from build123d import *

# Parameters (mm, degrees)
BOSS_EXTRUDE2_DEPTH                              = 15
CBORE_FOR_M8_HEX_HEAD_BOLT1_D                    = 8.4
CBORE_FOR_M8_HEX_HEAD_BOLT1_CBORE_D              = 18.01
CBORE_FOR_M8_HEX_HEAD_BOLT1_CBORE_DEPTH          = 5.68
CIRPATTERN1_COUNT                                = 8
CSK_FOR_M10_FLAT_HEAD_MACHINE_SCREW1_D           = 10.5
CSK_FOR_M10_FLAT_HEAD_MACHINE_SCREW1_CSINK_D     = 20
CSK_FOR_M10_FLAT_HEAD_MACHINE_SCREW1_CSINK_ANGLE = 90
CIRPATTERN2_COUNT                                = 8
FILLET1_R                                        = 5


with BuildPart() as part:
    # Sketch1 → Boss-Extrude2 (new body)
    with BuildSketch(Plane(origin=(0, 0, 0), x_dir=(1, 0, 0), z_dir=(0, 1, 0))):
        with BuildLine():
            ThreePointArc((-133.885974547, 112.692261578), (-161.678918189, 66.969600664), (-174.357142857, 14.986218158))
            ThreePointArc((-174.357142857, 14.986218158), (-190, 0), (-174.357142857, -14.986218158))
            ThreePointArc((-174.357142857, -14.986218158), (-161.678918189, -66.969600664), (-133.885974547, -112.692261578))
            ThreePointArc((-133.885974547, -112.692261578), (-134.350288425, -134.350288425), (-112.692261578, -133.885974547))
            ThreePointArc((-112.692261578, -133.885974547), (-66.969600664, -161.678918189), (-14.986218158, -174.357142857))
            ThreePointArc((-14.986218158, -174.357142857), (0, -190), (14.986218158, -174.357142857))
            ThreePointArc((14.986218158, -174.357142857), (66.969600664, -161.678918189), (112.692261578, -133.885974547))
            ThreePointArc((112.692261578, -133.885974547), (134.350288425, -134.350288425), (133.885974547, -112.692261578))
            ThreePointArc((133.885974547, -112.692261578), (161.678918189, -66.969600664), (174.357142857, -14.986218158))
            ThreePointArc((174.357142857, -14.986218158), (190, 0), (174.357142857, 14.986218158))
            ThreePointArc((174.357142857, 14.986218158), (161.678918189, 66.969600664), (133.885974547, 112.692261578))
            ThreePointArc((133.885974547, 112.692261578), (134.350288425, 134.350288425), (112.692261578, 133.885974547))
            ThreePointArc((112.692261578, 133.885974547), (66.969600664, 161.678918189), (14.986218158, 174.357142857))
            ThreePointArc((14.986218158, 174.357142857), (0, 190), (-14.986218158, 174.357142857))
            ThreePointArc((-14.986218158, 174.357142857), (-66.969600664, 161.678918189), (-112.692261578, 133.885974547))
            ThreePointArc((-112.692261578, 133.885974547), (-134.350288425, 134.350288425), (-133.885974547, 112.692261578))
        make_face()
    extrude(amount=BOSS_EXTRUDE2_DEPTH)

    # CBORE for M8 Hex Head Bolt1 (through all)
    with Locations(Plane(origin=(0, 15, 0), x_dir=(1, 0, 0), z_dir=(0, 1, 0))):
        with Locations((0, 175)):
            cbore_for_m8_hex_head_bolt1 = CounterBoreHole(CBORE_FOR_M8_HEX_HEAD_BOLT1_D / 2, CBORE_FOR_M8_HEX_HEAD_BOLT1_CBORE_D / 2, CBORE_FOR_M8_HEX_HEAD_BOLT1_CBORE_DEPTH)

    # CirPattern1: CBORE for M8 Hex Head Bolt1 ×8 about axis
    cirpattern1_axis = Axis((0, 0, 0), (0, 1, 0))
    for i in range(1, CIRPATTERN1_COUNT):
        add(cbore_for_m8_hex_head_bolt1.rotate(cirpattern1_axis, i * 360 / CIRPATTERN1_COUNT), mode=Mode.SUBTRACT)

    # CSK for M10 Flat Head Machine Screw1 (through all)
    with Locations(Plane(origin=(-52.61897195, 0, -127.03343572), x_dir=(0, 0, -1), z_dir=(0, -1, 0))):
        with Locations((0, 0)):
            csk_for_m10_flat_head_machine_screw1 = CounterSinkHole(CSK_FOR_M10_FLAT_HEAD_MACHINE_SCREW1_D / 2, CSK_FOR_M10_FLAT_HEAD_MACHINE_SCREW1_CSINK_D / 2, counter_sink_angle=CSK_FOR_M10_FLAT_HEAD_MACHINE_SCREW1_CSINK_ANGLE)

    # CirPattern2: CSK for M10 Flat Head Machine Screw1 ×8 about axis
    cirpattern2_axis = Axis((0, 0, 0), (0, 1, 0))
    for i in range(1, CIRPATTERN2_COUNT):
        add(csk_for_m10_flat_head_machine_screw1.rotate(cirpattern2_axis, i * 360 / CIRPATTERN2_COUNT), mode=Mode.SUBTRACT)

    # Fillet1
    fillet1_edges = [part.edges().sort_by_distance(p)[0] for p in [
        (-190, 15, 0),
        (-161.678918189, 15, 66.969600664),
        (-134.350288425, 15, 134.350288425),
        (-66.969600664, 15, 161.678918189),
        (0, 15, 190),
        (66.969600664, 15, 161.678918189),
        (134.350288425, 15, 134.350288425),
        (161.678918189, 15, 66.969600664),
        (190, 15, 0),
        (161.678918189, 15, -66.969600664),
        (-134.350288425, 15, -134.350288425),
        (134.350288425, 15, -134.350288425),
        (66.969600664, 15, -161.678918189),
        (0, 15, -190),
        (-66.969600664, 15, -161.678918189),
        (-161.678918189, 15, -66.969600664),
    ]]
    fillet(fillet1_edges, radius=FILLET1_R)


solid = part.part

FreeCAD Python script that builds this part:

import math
import FreeCAD as App
import Part
import Sketcher
Q = App.Units.Quantity


def edges_at(feature, points):
    """Names of the edges that pass closest to the given points."""
    edges = feature.Shape.Edges
    near = lambda p: min(range(len(edges)), key=lambda i: edges[i].distToShape(Part.Vertex(*p))[0])
    return sorted({f"Edge{near(p) + 1}" for p in points})

doc = App.newDocument("Part")
params = doc.addObject("Spreadsheet::Sheet", "Params")
for row, (alias, value) in enumerate([
    ("sketch1_radius", "175 mm"),
    ("sketch1_radius2", "15 mm"),
    ("pad1_length", "15 mm"),
    ("sketch2_diameter", "8.4 mm"),
    ("hole_diameter", "8.4 mm"),
    ("hole_cbore_diameter", "18.01 mm"),
    ("hole_cbore_depth", "5.68 mm"),
    ("sketch3_diameter", "10.5 mm"),
    ("hole2_diameter", "10.5 mm"),
    ("hole2_csink_diameter", "20 mm"),
    ("fillet_radius", "5 mm"),
], start=1):
    params.set(f"A{row}", alias)
    params.set(f"B{row}", "=" + value)
    params.setAlias(f"B{row}", alias)

body = doc.addObject("PartDesign::Body", "Body")

sketch1 = body.newObject("Sketcher::SketchObject", "Sketch")
sketch1.AttachmentSupport = (doc.getObject("XZ_Plane"), [""])
sketch1.MapMode = "FlatFace"
sketch1.addGeometry([
    Part.ArcOfCircle(Part.Circle(App.Vector(0, 0, 0), App.Vector(0, 0, 1), 175), math.radians(-175.087429), math.radians(-139.912571)),
    Part.ArcOfCircle(Part.Circle(App.Vector(-175, 0, 0), App.Vector(0, 0, 1), 15), math.radians(87.543714), math.radians(272.456286)),
    Part.ArcOfCircle(Part.Circle(App.Vector(0, 0, 0), App.Vector(0, 0, 1), 175), math.radians(139.912571), math.radians(175.087429)),
    Part.ArcOfCircle(Part.Circle(App.Vector(-123.743687, 123.743687, 0), App.Vector(0, 0, 1), 15), math.radians(42.543714), math.radians(227.456286)),
    Part.ArcOfCircle(Part.Circle(App.Vector(0, 0, 0), App.Vector(0, 0, 1), 175), math.radians(94.912571), math.radians(130.087429)),
    Part.ArcOfCircle(Part.Circle(App.Vector(0, 175, 0), App.Vector(0, 0, 1), 15), math.radians(-2.456286), math.radians(182.456286)),
    Part.ArcOfCircle(Part.Circle(App.Vector(0, 0, 0), App.Vector(0, 0, 1), 175), math.radians(49.912571), math.radians(85.087429)),
    Part.ArcOfCircle(Part.Circle(App.Vector(123.743687, 123.743687, 0), App.Vector(0, 0, 1), 15), math.radians(-47.456286), math.radians(137.456286)),
    Part.ArcOfCircle(Part.Circle(App.Vector(0, 0, 0), App.Vector(0, 0, 1), 175), math.radians(4.912571), math.radians(40.087429)),
    Part.ArcOfCircle(Part.Circle(App.Vector(175, 0, 0), App.Vector(0, 0, 1), 15), math.radians(-92.456286), math.radians(92.456286)),
    Part.ArcOfCircle(Part.Circle(App.Vector(0, 0, 0), App.Vector(0, 0, 1), 175), math.radians(-40.087429), math.radians(-4.912571)),
    Part.ArcOfCircle(Part.Circle(App.Vector(123.743687, -123.743687, 0), App.Vector(0, 0, 1), 15), math.radians(-137.456286), math.radians(47.456286)),
    Part.ArcOfCircle(Part.Circle(App.Vector(0, 0, 0), App.Vector(0, 0, 1), 175), math.radians(-85.087429), math.radians(-49.912571)),
    Part.ArcOfCircle(Part.Circle(App.Vector(0, -175, 0), App.Vector(0, 0, 1), 15), math.radians(177.543714), math.radians(362.456286)),
    Part.ArcOfCircle(Part.Circle(App.Vector(0, 0, 0), App.Vector(0, 0, 1), 175), math.radians(-130.087429), math.radians(-94.912571)),
    Part.ArcOfCircle(Part.Circle(App.Vector(-123.743687, -123.743687, 0), App.Vector(0, 0, 1), 15), math.radians(132.543714), math.radians(317.456286)),
], False)
sketch1.addConstraint([
    Sketcher.Constraint("Coincident", 0, 1, 1, 2),
    Sketcher.Constraint("Coincident", 1, 1, 2, 2),
    Sketcher.Constraint("Coincident", 2, 1, 3, 2),
    Sketcher.Constraint("Coincident", 3, 1, 4, 2),
    Sketcher.Constraint("Coincident", 4, 1, 5, 2),
    Sketcher.Constraint("Coincident", 5, 1, 6, 2),
    Sketcher.Constraint("Coincident", 6, 1, 7, 2),
    Sketcher.Constraint("Coincident", 7, 1, 8, 2),
    Sketcher.Constraint("Coincident", 8, 1, 9, 2),
    Sketcher.Constraint("Coincident", 9, 1, 10, 2),
    Sketcher.Constraint("Coincident", 10, 1, 11, 2),
    Sketcher.Constraint("Coincident", 11, 1, 12, 2),
    Sketcher.Constraint("Coincident", 12, 1, 13, 2),
    Sketcher.Constraint("Coincident", 13, 1, 14, 2),
    Sketcher.Constraint("Coincident", 14, 1, 15, 2),
    Sketcher.Constraint("Coincident", 15, 1, 0, 2),
    Sketcher.Constraint("Coincident", 0, 3, -1, 1),
    Sketcher.Constraint("Coincident", 2, 3, -1, 1),
    Sketcher.Constraint("Coincident", 4, 3, -1, 1),
    Sketcher.Constraint("Coincident", 6, 3, -1, 1),
    Sketcher.Constraint("Coincident", 8, 3, -1, 1),
    Sketcher.Constraint("Coincident", 10, 3, -1, 1),
    Sketcher.Constraint("Coincident", 12, 3, -1, 1),
    Sketcher.Constraint("Coincident", 14, 3, -1, 1),
    Sketcher.Constraint("Equal", 0, 2),
    Sketcher.Constraint("Equal", 1, 3),
    Sketcher.Constraint("Equal", 2, 4),
    Sketcher.Constraint("Equal", 3, 5),
    Sketcher.Constraint("Equal", 4, 6),
    Sketcher.Constraint("Equal", 5, 7),
    Sketcher.Constraint("Equal", 6, 8),
    Sketcher.Constraint("Equal", 7, 9),
    Sketcher.Constraint("Equal", 8, 10),
    Sketcher.Constraint("Equal", 9, 11),
    Sketcher.Constraint("Equal", 10, 12),
    Sketcher.Constraint("Equal", 11, 13),
    Sketcher.Constraint("Equal", 12, 14),
    Sketcher.Constraint("Equal", 13, 15),
    Sketcher.Constraint("Symmetric", 1, 3, 9, 3, -1, 1),
    Sketcher.Constraint("Symmetric", 3, 3, 11, 3, -1, 1),
    Sketcher.Constraint("Symmetric", 5, 3, 13, 3, -1, 1),
    Sketcher.Constraint("Symmetric", 7, 3, 15, 3, -1, 1),
    Sketcher.Constraint("Symmetric", 3, 3, 7, 3, -2),
    Sketcher.Constraint("PointOnObject", 1, 3, -1),
    Sketcher.Constraint("PointOnObject", 5, 3, -2),
    Sketcher.Constraint("Radius", 0, Q("175 mm")),
    Sketcher.Constraint("Radius", 1, Q("15 mm")),
    Sketcher.Constraint("DistanceX", 1, 3, -1, 1, Q("175 mm")),
    Sketcher.Constraint("DistanceY", -1, 1, 5, 3, Q("175 mm")),
    Sketcher.Constraint("DistanceY", -1, 1, 2, 1, Q("112.692262 mm")),
    Sketcher.Constraint("DistanceX", 3, 1, -1, 1, Q("112.692262 mm")),
])
sketch1.setExpression("Constraints[45]", "Params.sketch1_radius")
sketch1.setExpression("Constraints[46]", "Params.sketch1_radius2")
pad1 = body.newObject("PartDesign::Pad", "Pad")
pad1.Profile = sketch1
pad1.setExpression("Length", "Params.pad1_length")
pad1.Reversed = True

sketch2 = body.newObject("Sketcher::SketchObject", "Sketch001")
sketch2.AttachmentSupport = (doc.getObject("XZ_Plane"), [""])
sketch2.MapMode = "FlatFace"
sketch2.AttachmentOffset = App.Placement(App.Vector(0, 0, -15), App.Rotation())
sketch2.addGeometry(Part.Circle(App.Vector(0, -175, 0), App.Vector(0, 0, 1), 4.2), False)
sketch2.addConstraint([
    Sketcher.Constraint("PointOnObject", 0, 3, -2),
    Sketcher.Constraint("Diameter", 0, Q("8.4 mm")),
    Sketcher.Constraint("DistanceY", 0, 3, -1, 1, Q("175 mm")),
])
sketch2.setExpression("Constraints[1]", "Params.sketch2_diameter")
doc.recompute()
hole = body.newObject("PartDesign::Hole", "Hole")
hole.Profile = sketch2
hole.ThreadType = "None"
hole.setExpression("Diameter", "Params.hole_diameter")
hole.DepthType = "ThroughAll"
hole.HoleCutType = "Counterbore"
hole.setExpression("HoleCutDiameter", "Params.hole_cbore_diameter")
hole.setExpression("HoleCutDepth", "Params.hole_cbore_depth")
hole.Reversed = True
doc.recompute()

polarpattern = body.newObject("PartDesign::PolarPattern", "PolarPattern")
polarpattern.Originals = [hole]
polarpattern.Axis = (doc.getObject("Y_Axis"), [""])
polarpattern.Angle = 360
polarpattern.Occurrences = 8
body.Tip = polarpattern

sketch3 = body.newObject("Sketcher::SketchObject", "Sketch002")
sketch3.AttachmentSupport = (doc.getObject("XZ_Plane"), [""])
sketch3.MapMode = "FlatFace"
sketch3.addGeometry(Part.Circle(App.Vector(-52.618972, -127.033436, 0), App.Vector(0, 0, 1), 5.25), False)
sketch3.addConstraint([
    Sketcher.Constraint("Diameter", 0, Q("10.5 mm")),
    Sketcher.Constraint("DistanceX", 0, 3, -1, 1, Q("52.618972 mm")),
    Sketcher.Constraint("DistanceY", 0, 3, -1, 1, Q("127.033436 mm")),
])
sketch3.setExpression("Constraints[0]", "Params.sketch3_diameter")
doc.recompute()
hole2 = body.newObject("PartDesign::Hole", "Hole001")
hole2.Profile = sketch3
hole2.ThreadType = "None"
hole2.setExpression("Diameter", "Params.hole2_diameter")
hole2.DepthType = "ThroughAll"
hole2.HoleCutType = "Countersink"
hole2.setExpression("HoleCutDiameter", "Params.hole2_csink_diameter")
hole2.HoleCutCountersinkAngle = 90
doc.recompute()

polarpattern2 = body.newObject("PartDesign::PolarPattern", "PolarPattern001")
polarpattern2.Originals = [hole2]
polarpattern2.Axis = (doc.getObject("Y_Axis"), [""])
polarpattern2.Angle = 360
polarpattern2.Occurrences = 8
body.Tip = polarpattern2
doc.recompute()

fillet = body.newObject("PartDesign::Fillet", "Fillet")
fillet.Base = (polarpattern2, edges_at(polarpattern2, [
    (-190, 15, 0),
    (-161.679, 15, 66.97),
    (-134.35, 15, 134.35),
    (-66.97, 15, 161.679),
    (0, 15, 190),
    (66.97, 15, 161.679),
    (134.35, 15, 134.35),
    (161.679, 15, 66.97),
    (190, 15, 0),
    (161.679, 15, -66.97),
    (-134.35, 15, -134.35),
    (134.35, 15, -134.35),
    (66.97, 15, -161.679),
    (0, 15, -190),
    (-66.97, 15, -161.679),
    (-161.679, 15, -66.97),
]))
fillet.setExpression("Radius", "Params.fillet_radius")

doc.recompute()
